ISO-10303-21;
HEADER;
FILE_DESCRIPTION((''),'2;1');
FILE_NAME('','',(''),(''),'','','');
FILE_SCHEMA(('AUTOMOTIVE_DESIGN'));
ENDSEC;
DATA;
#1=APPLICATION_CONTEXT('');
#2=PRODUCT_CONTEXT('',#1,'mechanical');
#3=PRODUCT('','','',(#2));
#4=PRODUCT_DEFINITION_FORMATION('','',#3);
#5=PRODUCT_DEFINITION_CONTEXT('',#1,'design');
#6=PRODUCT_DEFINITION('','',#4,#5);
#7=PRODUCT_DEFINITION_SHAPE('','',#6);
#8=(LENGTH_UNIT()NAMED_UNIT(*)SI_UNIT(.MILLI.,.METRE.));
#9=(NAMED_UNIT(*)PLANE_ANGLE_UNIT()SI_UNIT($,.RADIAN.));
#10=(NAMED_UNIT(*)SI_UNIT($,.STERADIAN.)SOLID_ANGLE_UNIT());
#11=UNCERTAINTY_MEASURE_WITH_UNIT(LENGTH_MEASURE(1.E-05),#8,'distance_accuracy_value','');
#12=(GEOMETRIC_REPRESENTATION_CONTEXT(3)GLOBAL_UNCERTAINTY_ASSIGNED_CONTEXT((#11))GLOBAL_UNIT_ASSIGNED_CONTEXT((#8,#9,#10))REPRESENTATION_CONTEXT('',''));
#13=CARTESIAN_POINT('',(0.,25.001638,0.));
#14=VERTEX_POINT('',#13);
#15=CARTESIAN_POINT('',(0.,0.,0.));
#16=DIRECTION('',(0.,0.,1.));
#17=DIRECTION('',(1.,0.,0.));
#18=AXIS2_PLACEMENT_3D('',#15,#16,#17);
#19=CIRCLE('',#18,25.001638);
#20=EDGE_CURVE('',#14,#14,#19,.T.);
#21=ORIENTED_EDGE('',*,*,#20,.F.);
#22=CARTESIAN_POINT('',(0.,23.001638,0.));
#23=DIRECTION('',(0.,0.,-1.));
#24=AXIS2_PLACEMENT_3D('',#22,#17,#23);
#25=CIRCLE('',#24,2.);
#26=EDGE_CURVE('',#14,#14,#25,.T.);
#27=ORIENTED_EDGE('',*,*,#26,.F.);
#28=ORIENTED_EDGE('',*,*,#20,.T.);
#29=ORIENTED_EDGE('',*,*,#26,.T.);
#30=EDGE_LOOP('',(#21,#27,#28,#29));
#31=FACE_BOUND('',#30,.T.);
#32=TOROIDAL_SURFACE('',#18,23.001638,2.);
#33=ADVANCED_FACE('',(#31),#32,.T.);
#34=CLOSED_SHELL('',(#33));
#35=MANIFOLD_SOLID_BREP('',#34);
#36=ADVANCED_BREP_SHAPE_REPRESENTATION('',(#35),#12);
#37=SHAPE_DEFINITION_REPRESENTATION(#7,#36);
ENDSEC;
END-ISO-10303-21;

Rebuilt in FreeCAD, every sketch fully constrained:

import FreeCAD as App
import Part
import Sketcher

V = App.Vector

doc = App.newDocument("Part")
body = doc.addObject("PartDesign::Body", "Body")

# Sketch on YZ plane
sketch1 = body.newObject("Sketcher::SketchObject", "Sketch")
sketch1.AttachmentSupport = (doc.getObject("YZ_Plane"), [""])
sketch1.MapMode = "FlatFace"
sketch1.addGeometry(Part.Circle(V(23, 0, 0), V(0, 0, 1), 2), False)
sketch1.addConstraint(Sketcher.Constraint("PointOnObject", 0, 3, -1))
sketch1.addConstraint(Sketcher.Constraint("Diameter", 0, 4.0))
sketch1.addConstraint(Sketcher.Constraint("DistanceX", -1, 1, 0, 3, 23.001638))

# Sketch on XY plane
sketch2 = body.newObject("Sketcher::SketchObject", "Sketch001")
sketch2.AttachmentSupport = (doc.getObject("XY_Plane"), [""])
sketch2.MapMode = "FlatFace"
sketch2.addGeometry(Part.Circle(V(0, 0, 0), V(0, 0, 1), 23), False)
sketch2.addConstraint(Sketcher.Constraint("Coincident", 0, 3, -1, 1))
sketch2.addConstraint(Sketcher.Constraint("Diameter", 0, 46.003275))
doc.recompute()

additivepipe = body.newObject("PartDesign::AdditivePipe", "AdditivePipe")
additivepipe.Profile = sketch1
additivepipe.Spine = (sketch2, ["Edge1"])

doc.recompute()
